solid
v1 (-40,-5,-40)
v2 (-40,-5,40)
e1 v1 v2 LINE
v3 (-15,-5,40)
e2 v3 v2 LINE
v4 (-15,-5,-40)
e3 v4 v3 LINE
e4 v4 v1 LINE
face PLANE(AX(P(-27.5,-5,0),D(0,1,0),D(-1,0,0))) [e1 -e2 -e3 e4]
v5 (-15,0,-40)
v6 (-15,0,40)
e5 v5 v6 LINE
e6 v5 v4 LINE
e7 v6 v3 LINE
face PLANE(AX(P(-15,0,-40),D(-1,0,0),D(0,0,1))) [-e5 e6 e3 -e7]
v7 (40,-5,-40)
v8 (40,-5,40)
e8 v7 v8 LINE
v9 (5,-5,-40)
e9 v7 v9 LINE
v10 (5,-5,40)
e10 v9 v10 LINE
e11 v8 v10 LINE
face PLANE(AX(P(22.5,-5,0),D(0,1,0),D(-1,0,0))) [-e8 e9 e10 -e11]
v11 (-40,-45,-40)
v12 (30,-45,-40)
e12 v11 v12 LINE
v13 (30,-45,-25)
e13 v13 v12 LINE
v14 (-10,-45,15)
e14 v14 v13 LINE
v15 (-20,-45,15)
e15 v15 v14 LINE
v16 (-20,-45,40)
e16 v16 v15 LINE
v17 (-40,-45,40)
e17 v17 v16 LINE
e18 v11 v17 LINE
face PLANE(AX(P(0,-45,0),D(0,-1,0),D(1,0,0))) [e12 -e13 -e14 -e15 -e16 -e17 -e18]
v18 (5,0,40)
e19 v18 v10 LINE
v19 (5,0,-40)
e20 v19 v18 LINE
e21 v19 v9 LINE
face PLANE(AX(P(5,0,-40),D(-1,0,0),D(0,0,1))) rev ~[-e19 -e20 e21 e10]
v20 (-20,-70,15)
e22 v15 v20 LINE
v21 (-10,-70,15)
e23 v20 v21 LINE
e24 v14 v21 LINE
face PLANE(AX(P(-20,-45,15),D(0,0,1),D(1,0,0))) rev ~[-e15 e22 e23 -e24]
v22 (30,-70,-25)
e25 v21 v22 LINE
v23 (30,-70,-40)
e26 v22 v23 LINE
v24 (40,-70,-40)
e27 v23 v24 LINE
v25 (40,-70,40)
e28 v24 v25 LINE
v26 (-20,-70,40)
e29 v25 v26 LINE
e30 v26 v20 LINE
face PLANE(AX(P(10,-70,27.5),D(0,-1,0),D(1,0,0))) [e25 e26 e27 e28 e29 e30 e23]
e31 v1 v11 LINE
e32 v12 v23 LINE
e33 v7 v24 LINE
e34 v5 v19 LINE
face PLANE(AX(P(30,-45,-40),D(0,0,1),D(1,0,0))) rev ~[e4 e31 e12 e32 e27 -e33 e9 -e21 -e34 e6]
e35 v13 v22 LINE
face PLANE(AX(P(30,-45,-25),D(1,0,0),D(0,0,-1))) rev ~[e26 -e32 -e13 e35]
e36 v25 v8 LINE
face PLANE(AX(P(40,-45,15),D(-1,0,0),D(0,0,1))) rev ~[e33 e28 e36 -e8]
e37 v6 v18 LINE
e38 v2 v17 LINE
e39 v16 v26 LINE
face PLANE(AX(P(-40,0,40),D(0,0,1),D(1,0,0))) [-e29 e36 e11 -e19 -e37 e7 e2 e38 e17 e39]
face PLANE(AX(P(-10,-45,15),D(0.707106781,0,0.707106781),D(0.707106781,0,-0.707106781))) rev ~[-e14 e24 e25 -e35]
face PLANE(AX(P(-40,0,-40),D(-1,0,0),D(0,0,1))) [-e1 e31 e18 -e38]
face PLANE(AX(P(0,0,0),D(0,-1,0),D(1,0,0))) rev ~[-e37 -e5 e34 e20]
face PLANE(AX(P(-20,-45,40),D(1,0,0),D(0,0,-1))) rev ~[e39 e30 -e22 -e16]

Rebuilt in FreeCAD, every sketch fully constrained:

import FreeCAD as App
import Part
import Sketcher

doc = App.newDocument("Part")
body = doc.addObject("PartDesign::Body", "Body")

# Sketch on XZ plane
sketch1 = body.newObject("Sketcher::SketchObject", "Sketch")
sketch1.AttachmentSupport = (doc.getObject("XZ_Plane"), [""])
sketch1.MapMode = "FlatFace"
sketch1.addGeometry(Part.LineSegment(App.Vector(-40, 40, 0), App.Vector(-40, -40, 0)), False)
sketch1.addGeometry(Part.LineSegment(App.Vector(-40, -40, 0), App.Vector(40, -40, 0)), False)
sketch1.addGeometry(Part.LineSegment(App.Vector(40, -40, 0), App.Vector(40, 40, 0)), False)
sketch1.addGeometry(Part.LineSegment(App.Vector(40, 40, 0), App.Vector(-40, 40, 0)), False)
sketch1.addConstraint(Sketcher.Constraint("Coincident", 0, 2, 1, 1))
sketch1.addConstraint(Sketcher.Constraint("Coincident", 1, 2, 2, 1))
sketch1.addConstraint(Sketcher.Constraint("Coincident", 2, 2, 3, 1))
sketch1.addConstraint(Sketcher.Constraint("Coincident", 3, 2, 0, 1))
sketch1.addConstraint(Sketcher.Constraint("Vertical", 0))
sketch1.addConstraint(Sketcher.Constraint("Horizontal", 1))
sketch1.addConstraint(Sketcher.Constraint("Vertical", 2))
sketch1.addConstraint(Sketcher.Constraint("Horizontal", 3))
sketch1.addConstraint(Sketcher.Constraint("Symmetric", 0, 2, 2, 2, -1, 1))
sketch1.addConstraint(Sketcher.Constraint("Equal", 3, 0))
sketch1.addConstraint(Sketcher.Constraint("DistanceX", 1, 1, 1, 2, 80.0))
pad1 = body.newObject("PartDesign::Pad", "Pad")
pad1.Profile = sketch1
pad1.Length = 45

# Sketch on XZ plane
sketch2 = body.newObject("Sketcher::SketchObject", "Sketch001")
sketch2.AttachmentSupport = (doc.getObject("XZ_Plane"), [""])
sketch2.MapMode = "FlatFace"
sketch2.AttachmentOffset = App.Placement(App.Vector(0, 0, 45), App.Rotation())
sketch2.addGeometry(Part.LineSegment(App.Vector(30, -25, 0), App.Vector(30, -40, 0)), False)
sketch2.addGeometry(Part.LineSegment(App.Vector(30, -40, 0), App.Vector(40, -40, 0)), False)
sketch2.addGeometry(Part.LineSegment(App.Vector(40, -40, 0), App.Vector(40, 15, 0)), False)
sketch2.addGeometry(Part.LineSegment(App.Vector(40, 15, 0), App.Vector(-10, 15, 0)), False)
sketch2.addGeometry(Part.LineSegment(App.Vector(-10, 15, 0), App.Vector(30, -25, 0)), False)
sketch2.addConstraint(Sketcher.Constraint("Coincident", 0, 2, 1, 1))
sketch2.addConstraint(Sketcher.Constraint("Coincident", 1, 2, 2, 1))
sketch2.addConstraint(Sketcher.Constraint("Coincident", 2, 2, 3, 1))
sketch2.addConstraint(Sketcher.Constraint("Coincident", 3, 2, 4, 1))
sketch2.addConstraint(Sketcher.Constraint("Coincident", 4, 2, 0, 1))
sketch2.addConstraint(Sketcher.Constraint("Vertical", 0))
sketch2.addConstraint(Sketcher.Constraint("Horizontal", 1))
sketch2.addConstraint(Sketcher.Constraint("Vertical", 2))
sketch2.addConstraint(Sketcher.Constraint("Horizontal", 3))
sketch2.addConstraint(Sketcher.Constraint("DistanceX", 1, 1, 1, 2, 10.0))
sketch2.addConstraint(Sketcher.Constraint("DistanceX", 3, 2, 3, 1, 50.0))
sketch2.addConstraint(Sketcher.Constraint("DistanceY", 0, 2, 0, 1, 15.0))
sketch2.addConstraint(Sketcher.Constraint("DistanceY", 2, 1, 2, 2, 55.0))
sketch2.addConstraint(Sketcher.Constraint("DistanceX", -1, 1, 0, 2, 30.0))
sketch2.addConstraint(Sketcher.Constraint("DistanceY", 0, 2, -1, 1, 40.0))
pad2 = body.newObject("PartDesign::Pad", "Pad001")
pad2.Profile = sketch2
pad2.Length = 25

# Sketch on XZ plane
sketch3 = body.newObject("Sketcher::SketchObject", "Sketch002")
sketch3.AttachmentSupport = (doc.getObject("XZ_Plane"), [""])
sketch3.MapMode = "FlatFace"
sketch3.AttachmentOffset = App.Placement(App.Vector(0, 0, 45), App.Rotation())
sketch3.addGeometry(Part.LineSegment(App.Vector(-20, 15, 0), App.Vector(40, 15, 0)), False)
sketch3.addGeometry(Part.LineSegment(App.Vector(40, 15, 0), App.Vector(40, 40, 0)), False)
sketch3.addGeometry(Part.LineSegment(App.Vector(40, 40, 0), App.Vector(-20, 40, 0)), False)
sketch3.addGeometry(Part.LineSegment(App.Vector(-20, 40, 0), App.Vector(-20, 15, 0)), False)
sketch3.addConstraint(Sketcher.Constraint("Coincident", 0, 2, 1, 1))
sketch3.addConstraint(Sketcher.Constraint("Coincident", 1, 2, 2, 1))
sketch3.addConstraint(Sketcher.Constraint("Coincident", 2, 2, 3, 1))
sketch3.addConstraint(Sketcher.Constraint("Coincident", 3, 2, 0, 1))
sketch3.addConstraint(Sketcher.Constraint("Horizontal", 0))
sketch3.addConstraint(Sketcher.Constraint("Vertical", 1))
sketch3.addConstraint(Sketcher.Constraint("Horizontal", 2))
sketch3.addConstraint(Sketcher.Constraint("Vertical", 3))
sketch3.addConstraint(Sketcher.Constraint("DistanceX", 0, 1, 0, 2, 60.0))
sketch3.addConstraint(Sketcher.Constraint("DistanceY", 1, 1, 1, 2, 25.0))
sketch3.addConstraint(Sketcher.Constraint("DistanceX", -1, 1, 0, 2, 40.0))
sketch3.addConstraint(Sketcher.Constraint("DistanceY", -1, 1, 0, 2, 15.0))
pad3 = body.newObject("PartDesign::Pad", "Pad002")
pad3.Profile = sketch3
pad3.Length = 25

# Sketch on XZ plane
sketch4 = body.newObject("Sketcher::SketchObject", "Sketch003")
sketch4.AttachmentSupport = (doc.getObject("XZ_Plane"), [""])
sketch4.MapMode = "FlatFace"
sketch4.addGeometry(Part.LineSegment(App.Vector(40, 40, 0), App.Vector(40, -40, 0)), False)
sketch4.addGeometry(Part.LineSegment(App.Vector(40, -40, 0), App.Vector(5, -40, 0)), False)
sketch4.addGeometry(Part.LineSegment(App.Vector(5, -40, 0), App.Vector(5, 40, 0)), False)
sketch4.addGeometry(Part.LineSegment(App.Vector(5, 40, 0), App.Vector(40, 40, 0)), False)
sketch4.addGeometry(Part.LineSegment(App.Vector(-15, 40, 0), App.Vector(-15, -40, 0)), False)
sketch4.addGeometry(Part.LineSegment(App.Vector(-15, -40, 0), App.Vector(-40, -40, 0)), False)
sketch4.addGeometry(Part.LineSegment(App.Vector(-40, -40, 0), App.Vector(-40, 40, 0)), False)
sketch4.addGeometry(Part.LineSegment(App.Vector(-40, 40, 0), App.Vector(-15, 40, 0)), False)
sketch4.addConstraint(Sketcher.Constraint("Coincident", 0, 2, 1, 1))
sketch4.addConstraint(Sketcher.Constraint("Coincident", 1, 2, 2, 1))
sketch4.addConstraint(Sketcher.Constraint("Coincident", 2, 2, 3, 1))
sketch4.addConstraint(Sketcher.Constraint("Coincident", 3, 2, 0, 1))
sketch4.addConstraint(Sketcher.Constraint("Coincident", 4, 2, 5, 1))
sketch4.addConstraint(Sketcher.Constraint("Coincident", 5, 2, 6, 1))
sketch4.addConstraint(Sketcher.Constraint("Coincident", 6, 2, 7, 1))
sketch4.addConstraint(Sketcher.Constraint("Coincident", 7, 2, 4, 1))
sketch4.addConstraint(Sketcher.Constraint("Vertical", 0))
sketch4.addConstraint(Sketcher.Constraint("Horizontal", 1))
sketch4.addConstraint(Sketcher.Constraint("Vertical", 2))
sketch4.addConstraint(Sketcher.Constraint("Horizontal", 3))
sketch4.addConstraint(Sketcher.Constraint("Vertical", 4))
sketch4.addConstraint(Sketcher.Constraint("Horizontal", 5))
sketch4.addConstraint(Sketcher.Constraint("Vertical", 6))
sketch4.addConstraint(Sketcher.Constraint("Horizontal", 7))
sketch4.addConstraint(Sketcher.Constraint("Symmetric", 3, 2, 5, 2, -1, 1))
sketch4.addConstraint(Sketcher.Constraint("Horizontal", 1, 2, 4, 2))
sketch4.addConstraint(Sketcher.Constraint("Horizontal", 3, 2, 6, 2))
sketch4.addConstraint(Sketcher.Constraint("DistanceX", 1, 2, 1, 1, 35.0))
sketch4.addConstraint(Sketcher.Constraint("DistanceX", 5, 2, 5, 1, 25.0))
sketch4.addConstraint(Sketcher.Constraint("DistanceY", 0, 2, 0, 1, 80.0))
sketch4.addConstraint(Sketcher.Constraint("DistanceX", -1, 1, 0, 2, 40.0))
pocket1 = body.newObject("PartDesign::Pocket", "Pocket")
pocket1.Profile = sketch4
pocket1.Length = 5
pocket1.Reversed = True

doc.recompute()
